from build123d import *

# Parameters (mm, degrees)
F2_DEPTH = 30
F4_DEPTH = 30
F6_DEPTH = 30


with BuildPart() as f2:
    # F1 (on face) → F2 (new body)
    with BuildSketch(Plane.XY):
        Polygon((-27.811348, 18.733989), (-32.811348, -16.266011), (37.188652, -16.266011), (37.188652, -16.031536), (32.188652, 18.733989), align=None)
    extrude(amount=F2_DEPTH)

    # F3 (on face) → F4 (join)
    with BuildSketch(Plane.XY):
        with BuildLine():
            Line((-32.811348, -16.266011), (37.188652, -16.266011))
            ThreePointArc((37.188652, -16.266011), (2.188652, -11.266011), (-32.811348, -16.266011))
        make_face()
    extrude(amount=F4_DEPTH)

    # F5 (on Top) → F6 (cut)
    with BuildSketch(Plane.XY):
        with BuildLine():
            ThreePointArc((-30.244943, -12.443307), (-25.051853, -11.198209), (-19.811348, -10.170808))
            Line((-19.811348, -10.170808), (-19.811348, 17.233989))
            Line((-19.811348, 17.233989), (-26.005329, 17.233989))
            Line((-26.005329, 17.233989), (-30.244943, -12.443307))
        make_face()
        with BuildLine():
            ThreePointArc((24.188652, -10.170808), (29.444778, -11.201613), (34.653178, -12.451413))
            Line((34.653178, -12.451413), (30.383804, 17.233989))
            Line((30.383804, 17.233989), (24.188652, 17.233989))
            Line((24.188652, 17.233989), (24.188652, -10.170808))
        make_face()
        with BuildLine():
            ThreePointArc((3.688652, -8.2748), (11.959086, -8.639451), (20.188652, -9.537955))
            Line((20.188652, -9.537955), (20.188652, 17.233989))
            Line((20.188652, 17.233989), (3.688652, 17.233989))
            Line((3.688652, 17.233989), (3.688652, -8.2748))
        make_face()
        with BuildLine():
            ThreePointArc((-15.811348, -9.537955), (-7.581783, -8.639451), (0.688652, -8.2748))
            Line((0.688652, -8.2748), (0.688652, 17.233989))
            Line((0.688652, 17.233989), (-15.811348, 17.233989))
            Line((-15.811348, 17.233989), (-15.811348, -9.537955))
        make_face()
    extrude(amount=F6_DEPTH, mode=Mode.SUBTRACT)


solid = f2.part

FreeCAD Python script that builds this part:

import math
import FreeCAD as App
import Part
import Sketcher
Q = App.Units.Quantity


def add_polygon(sketch, points):
    """Adds a closed chain of lines whose ends are joined by coincident constraints."""
    first, n = sketch.GeometryCount, len(points)
    for a, b in zip(points, points[1:] + points[:1]):
        sketch.addGeometry(Part.LineSegment(App.Vector(*a, 0), App.Vector(*b, 0)), False)
    for i in range(n):
        sketch.addConstraint(Sketcher.Constraint("Coincident", first + i, 2, first + (i + 1) % n, 1))

doc = App.newDocument("Part")
body = doc.addObject("PartDesign::Body", "Body")

sketch1 = body.newObject("Sketcher::SketchObject", "Sketch")
sketch1.AttachmentSupport = (doc.getObject("XY_Plane"), [""])
sketch1.MapMode = "FlatFace"
add_polygon(sketch1, [(-27.81, 18.73), (-32.81, -16.27), (37.19, -16.27), (37.19, -16.03), (32.19, 18.73)])
sketch1.addConstraint([
    Sketcher.Constraint("Horizontal", 1),
    Sketcher.Constraint("Vertical", 2),
    Sketcher.Constraint("Horizontal", 4),
    Sketcher.Constraint("DistanceX", 1, 1, 1, 2, Q("70 mm")),
    Sketcher.Constraint("DistanceX", 4, 2, 4, 1, Q("60 mm")),
    Sketcher.Constraint("DistanceX", 3, 2, 2, 2, Q("5 mm")),
    Sketcher.Constraint("DistanceY", 1, 2, 3, 2, Q("35 mm")),
    Sketcher.Constraint("DistanceY", 2, 1, 2, 2, Q("0.234475 mm")),
    Sketcher.Constraint("DistanceX", 0, 2, -1, 1, Q("32.811348 mm")),
    Sketcher.Constraint("DistanceY", 0, 2, -1, 1, Q("16.266011 mm")),
])
pad1 = body.newObject("PartDesign::Pad", "Pad")
pad1.Profile = sketch1
pad1.Length = 30

sketch2 = body.newObject("Sketcher::SketchObject", "Sketch001")
sketch2.AttachmentSupport = (doc.getObject("XY_Plane"), [""])
sketch2.MapMode = "FlatFace"
sketch2.addGeometry([
    Part.LineSegment(App.Vector(-33, -16, 0), App.Vector(37, -16, 0)),
    Part.ArcOfCircle(Part.Circle(App.Vector(2, -136, 0), App.Vector(0, 0, 1), 125), math.radians(74), math.radians(106)),
], False)
sketch2.addConstraint([
    Sketcher.Constraint("Coincident", 0, 1, 1, 2),
    Sketcher.Constraint("Coincident", 1, 1, 0, 2),
    Sketcher.Constraint("Horizontal", 0),
    Sketcher.Constraint("Radius", 1, Q("125 mm")),
    Sketcher.Constraint("DistanceX", 0, 1, 0, 2, Q("70 mm")),
    Sketcher.Constraint("DistanceX", -1, 1, 1, 3, Q("2.188652 mm")),
    Sketcher.Constraint("DistanceY", 1, 3, -1, 1, Q("136.266011 mm")),
])
pad2 = body.newObject("PartDesign::Pad", "Pad001")
pad2.Profile = sketch2
pad2.Length = 30

sketch3 = body.newObject("Sketcher::SketchObject", "Sketch002")
sketch3.AttachmentSupport = (doc.getObject("XY_Plane"), [""])
sketch3.MapMode = "FlatFace"
sketch3.addGeometry([
    Part.ArcOfCircle(Part.Circle(App.Vector(2, -136, 0), App.Vector(0, 0, 1), 128), math.radians(99.9), math.radians(104.68)),
    Part.LineSegment(App.Vector(-20, -10, 0), App.Vector(-20, 17, 0)),
    Part.LineSegment(App.Vector(-20, 17, 0), App.Vector(-26, 17, 0)),
    Part.LineSegment(App.Vector(-26, 17, 0), App.Vector(-30, -12, 0)),
    Part.ArcOfCircle(Part.Circle(App.Vector(2, -136, 0), App.Vector(0, 0, 1), 128), math.radians(75.31), math.radians(80.1)),
    Part.LineSegment(App.Vector(35, -12, 0), App.Vector(30, 17, 0)),
    Part.LineSegment(App.Vector(30, 17, 0), App.Vector(24, 17, 0)),
    Part.LineSegment(App.Vector(24, 17, 0), App.Vector(24, -10, 0)),
    Part.ArcOfCircle(Part.Circle(App.Vector(2, -136, 0), App.Vector(0, 0, 1), 128), math.radians(81.92), math.radians(89.33)),
    Part.LineSegment(App.Vector(20, -10, 0), App.Vector(20, 17, 0)),
    Part.LineSegment(App.Vector(20, 17, 0), App.Vector(4, 17, 0)),
    Part.LineSegment(App.Vector(4, 17, 0), App.Vector(4, -8, 0)),
    Part.ArcOfCircle(Part.Circle(App.Vector(2, -136, 0), App.Vector(0, 0, 1), 128), math.radians(90.67), math.radians(98.08)),
    Part.LineSegment(App.Vector(1, -8, 0), App.Vector(1, 17, 0)),
    Part.LineSegment(App.Vector(1, 17, 0), App.Vector(-16, 17, 0)),
    Part.LineSegment(App.Vector(-16, 17, 0), App.Vector(-16, -10, 0)),
], False)
sketch3.addConstraint([
    Sketcher.Constraint("Coincident", 0, 1, 1, 1),
    Sketcher.Constraint("Coincident", 1, 2, 2, 1),
    Sketcher.Constraint("Coincident", 2, 2, 3, 1),
    Sketcher.Constraint("Coincident", 3, 2, 0, 2),
    Sketcher.Constraint("Coincident", 4, 1, 5, 1),
    Sketcher.Constraint("Coincident", 5, 2, 6, 1),
    Sketcher.Constraint("Coincident", 6, 2, 7, 1),
    Sketcher.Constraint("Coincident", 7, 2, 4, 2),
    Sketcher.Constraint("Coincident", 8, 1, 9, 1),
    Sketcher.Constraint("Coincident", 9, 2, 10, 1),
    Sketcher.Constraint("Coincident", 10, 2, 11, 1),
    Sketcher.Constraint("Coincident", 11, 2, 8, 2),
    Sketcher.Constraint("Coincident", 12, 1, 13, 1),
    Sketcher.Constraint("Coincident", 13, 2, 14, 1),
    Sketcher.Constraint("Coincident", 14, 2, 15, 1),
    Sketcher.Constraint("Coincident", 15, 2, 12, 2),
    Sketcher.Constraint("Vertical", 1),
    Sketcher.Constraint("Horizontal", 2),
    Sketcher.Constraint("Horizontal", 6),
    Sketcher.Constraint("Vertical", 7),
    Sketcher.Constraint("Vertical", 9),
    Sketcher.Constraint("Horizontal", 10),
    Sketcher.Constraint("Vertical", 11),
    Sketcher.Constraint("Vertical", 13),
    Sketcher.Constraint("Horizontal", 14),
    Sketcher.Constraint("Vertical", 15),
    Sketcher.Constraint("Horizontal", 2, 2, 5, 2),
    Sketcher.Constraint("Horizontal", 0, 1, 7, 2),
    Sketcher.Constraint("Horizontal", 6, 2, 9, 2),
    Sketcher.Constraint("Horizontal", 11, 2, 12, 1),
    Sketcher.Constraint("Horizontal", 10, 2, 13, 2),
    Sketcher.Constraint("Horizontal", 8, 1, 15, 2),
    Sketcher.Constraint("Equal", 10, 14),
    Sketcher.Constraint("DistanceX", 10, 2, 10, 1, Q("16.5 mm")),
    Sketcher.Constraint("DistanceX", 1, 2, 6, 2, Q("44 mm")),
    Sketcher.Constraint("DistanceX", 8, 1, 7, 2, Q("4 mm")),
    Sketcher.Constraint("DistanceX", 12, 1, 11, 2, Q("3 mm")),
    Sketcher.Constraint("Radius", 0, Q("127.9998 mm")),
    Sketcher.Constraint("Radius", 4, Q("128.000542 mm")),
    Sketcher.Constraint("Radius", 8, Q("127.999884 mm")),
    Sketcher.Constraint("Radius", 12, Q("127.999847 mm")),
    Sketcher.Constraint("DistanceX", 2, 2, 2, 1, Q("6.193981 mm")),
    Sketcher.Constraint("DistanceY", 11, 2, 11, 1, Q("25.508789 mm")),
    Sketcher.Constraint("DistanceY", 11, 2, -1, 1, Q("8.2748 mm")),
    Sketcher.Constraint("DistanceY", 3, 2, 0, 1, Q("2.272499 mm")),
    Sketcher.Constraint("DistanceY", 0, 3, 4, 1, Q("123.814401 mm")),
    Sketcher.Constraint("DistanceX", 6, 2, 6, 1, Q("6.195152 mm")),
    Sketcher.Constraint("DistanceY", 1, 1, 1, 2, Q("27.404797 mm")),
    Sketcher.Constraint("DistanceY", 9, 1, 9, 2, Q("26.771944 mm")),
    Sketcher.Constraint("DistanceY", 4, 3, -1, 1, Q("136.266539 mm")),
    Sketcher.Constraint("DistanceX", 2, 2, -1, 1, Q("26.005329 mm")),
    Sketcher.Constraint("DistanceX", 3, 2, 12, 3, Q("32.433581 mm")),
])
pocket1 = body.newObject("PartDesign::Pocket", "Pocket")
pocket1.Profile = sketch3
pocket1.Length = 30
pocket1.Reversed = True

doc.recompute()
